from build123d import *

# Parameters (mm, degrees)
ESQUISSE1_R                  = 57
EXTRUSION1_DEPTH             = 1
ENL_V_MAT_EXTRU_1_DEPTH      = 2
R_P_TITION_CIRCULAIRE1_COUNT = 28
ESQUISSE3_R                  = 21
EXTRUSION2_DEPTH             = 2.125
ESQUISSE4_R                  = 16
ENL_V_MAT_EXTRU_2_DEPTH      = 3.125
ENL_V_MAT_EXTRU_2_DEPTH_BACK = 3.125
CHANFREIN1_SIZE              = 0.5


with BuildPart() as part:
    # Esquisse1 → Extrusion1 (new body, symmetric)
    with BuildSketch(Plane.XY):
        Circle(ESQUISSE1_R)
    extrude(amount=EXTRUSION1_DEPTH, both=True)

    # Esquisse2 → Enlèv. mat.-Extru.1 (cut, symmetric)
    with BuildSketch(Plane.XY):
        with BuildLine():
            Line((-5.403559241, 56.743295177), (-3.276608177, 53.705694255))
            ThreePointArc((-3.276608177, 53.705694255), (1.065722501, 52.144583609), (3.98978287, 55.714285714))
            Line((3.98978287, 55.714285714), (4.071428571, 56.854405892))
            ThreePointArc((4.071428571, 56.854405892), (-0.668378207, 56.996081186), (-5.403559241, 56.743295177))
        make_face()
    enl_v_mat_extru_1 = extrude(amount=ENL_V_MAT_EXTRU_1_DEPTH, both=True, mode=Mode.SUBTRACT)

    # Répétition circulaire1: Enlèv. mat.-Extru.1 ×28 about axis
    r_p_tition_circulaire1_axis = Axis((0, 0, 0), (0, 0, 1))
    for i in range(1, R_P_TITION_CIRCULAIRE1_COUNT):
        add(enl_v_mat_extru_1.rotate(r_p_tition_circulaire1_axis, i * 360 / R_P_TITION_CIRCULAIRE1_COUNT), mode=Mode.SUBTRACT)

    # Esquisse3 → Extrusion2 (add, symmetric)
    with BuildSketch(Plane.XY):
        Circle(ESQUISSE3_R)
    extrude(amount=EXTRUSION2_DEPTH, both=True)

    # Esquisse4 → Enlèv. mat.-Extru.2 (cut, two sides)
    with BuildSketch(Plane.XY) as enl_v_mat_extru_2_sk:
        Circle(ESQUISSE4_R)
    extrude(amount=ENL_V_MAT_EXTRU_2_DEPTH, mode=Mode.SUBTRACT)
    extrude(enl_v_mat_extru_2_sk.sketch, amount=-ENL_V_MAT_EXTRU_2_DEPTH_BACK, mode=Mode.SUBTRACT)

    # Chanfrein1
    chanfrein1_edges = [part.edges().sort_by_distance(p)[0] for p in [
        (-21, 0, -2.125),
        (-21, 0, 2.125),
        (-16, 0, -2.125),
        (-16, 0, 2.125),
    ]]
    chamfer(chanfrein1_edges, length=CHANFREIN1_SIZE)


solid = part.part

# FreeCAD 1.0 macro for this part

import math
import FreeCAD as App
import Part
import Sketcher

V = App.Vector
Q = App.Units.Quantity


def edges_at(feature, points):
    """Names of the edges that pass closest to the given points."""
    edges = feature.Shape.Edges
    near = lambda p: min(range(len(edges)), key=lambda i: edges[i].distToShape(Part.Vertex(*p))[0])
    return sorted({f"Edge{near(p) + 1}" for p in points})

doc = App.newDocument("Part")
body = doc.addObject("PartDesign::Body", "Body")

# Sketch on XY plane
sketch1 = body.newObject("Sketcher::SketchObject", "Sketch")
sketch1.AttachmentSupport = (doc.getObject("XY_Plane"), [""])
sketch1.MapMode = "FlatFace"
sketch1.addGeometry(Part.Circle(V(0, 0, 0), V(0, 0, 1), 57), False)
sketch1.addConstraint(Sketcher.Constraint("Coincident", 0, 3, -1, 1))
sketch1.addConstraint(Sketcher.Constraint("Diameter", 0, Q("114 mm")))
pad1 = body.newObject("PartDesign::Pad", "Pad")
pad1.Profile = sketch1
pad1.Length = 2
pad1.Midplane = True

# Sketch on XY plane
sketch2 = body.newObject("Sketcher::SketchObject", "Sketch001")
sketch2.AttachmentSupport = (doc.getObject("XY_Plane"), [""])
sketch2.MapMode = "FlatFace"
sketch2.addGeometry(Part.LineSegment(V(-5.403559, 56.743295, 0), V(-3.276608, 53.705694, 0)), False)
sketch2.addGeometry(Part.ArcOfCircle(Part.Circle(V(0, 56, 0), V(0, 0, 1), 4), math.radians(-145), math.radians(-4.096044)), False)
sketch2.addGeometry(Part.LineSegment(V(3.989783, 55.714286, 0), V(4.071429, 56.854406, 0)), False)
sketch2.addGeometry(Part.ArcOfCircle(Part.Circle(V(0, 0, 0), V(0, 0, 1), 57), math.radians(85.903956), math.radians(95.439768)), False)
sketch2.addConstraint(Sketcher.Constraint("Tangent", 0, 2, 1, 1))
sketch2.addConstraint(Sketcher.Constraint("Tangent", 1, 2, 2, 1))
sketch2.addConstraint(Sketcher.Constraint("Coincident", 2, 2, 3, 1))
sketch2.addConstraint(Sketcher.Constraint("Coincident", 3, 2, 0, 1))
sketch2.addConstraint(Sketcher.Constraint("Coincident", 3, 3, -1, 1))
sketch2.addConstraint(Sketcher.Constraint("PointOnObject", 1, 3, -2))
sketch2.addConstraint(Sketcher.Constraint("Radius", 1, Q("4 mm")))
sketch2.addConstraint(Sketcher.Constraint("Radius", 3, Q("57 mm")))
sketch2.addConstraint(Sketcher.Constraint("Angle", 0, Q("-55 deg")))
sketch2.addConstraint(Sketcher.Constraint("DistanceY", -1, 1, 1, 3, Q("56 mm")))
sketch2.addConstraint(Sketcher.Constraint("Distance", 2, Q("1.14304 mm")))
pocket1 = body.newObject("PartDesign::Pocket", "Pocket")
pocket1.Profile = sketch2
pocket1.Length = 4
pocket1.Midplane = True
doc.recompute()

polarpattern = body.newObject("PartDesign::PolarPattern", "PolarPattern")
polarpattern.Originals = [pocket1]
polarpattern.Axis = (doc.getObject("Z_Axis"), [""])
polarpattern.Angle = 360
polarpattern.Occurrences = 28
body.Tip = polarpattern

# Sketch on XY plane
sketch3 = body.newObject("Sketcher::SketchObject", "Sketch002")
sketch3.AttachmentSupport = (doc.getObject("XY_Plane"), [""])
sketch3.MapMode = "FlatFace"
sketch3.addGeometry(Part.Circle(V(0, 0, 0), V(0, 0, 1), 21), False)
sketch3.addConstraint(Sketcher.Constraint("Coincident", 0, 3, -1, 1))
sketch3.addConstraint(Sketcher.Constraint("Diameter", 0, Q("42 mm")))
pad2 = body.newObject("PartDesign::Pad", "Pad001")
pad2.Profile = sketch3
pad2.Length = 4.25
pad2.Midplane = True

# Sketch on XY plane
sketch4 = body.newObject("Sketcher::SketchObject", "Sketch003")
sketch4.AttachmentSupport = (doc.getObject("XY_Plane"), [""])
sketch4.MapMode = "FlatFace"
sketch4.addGeometry(Part.Circle(V(0, 0, 0), V(0, 0, 1), 16), False)
sketch4.addConstraint(Sketcher.Constraint("Coincident", 0, 3, -1, 1))
sketch4.addConstraint(Sketcher.Constraint("Diameter", 0, Q("32 mm")))
pocket2 = body.newObject("PartDesign::Pocket", "Pocket001")
pocket2.Profile = sketch4
pocket2.Type = "ThroughAll"
pocket2.Midplane = True
doc.recompute()

chamfer = body.newObject("PartDesign::Chamfer", "Chamfer")
chamfer.Base = (pocket2, edges_at(pocket2, [
    (-21, 0, -2.125),
    (-21, 0, 2.125),
    (-16, 0, -2.125),
    (-16, 0, 2.125),
]))
chamfer.Size = 0.5

doc.recompute()
